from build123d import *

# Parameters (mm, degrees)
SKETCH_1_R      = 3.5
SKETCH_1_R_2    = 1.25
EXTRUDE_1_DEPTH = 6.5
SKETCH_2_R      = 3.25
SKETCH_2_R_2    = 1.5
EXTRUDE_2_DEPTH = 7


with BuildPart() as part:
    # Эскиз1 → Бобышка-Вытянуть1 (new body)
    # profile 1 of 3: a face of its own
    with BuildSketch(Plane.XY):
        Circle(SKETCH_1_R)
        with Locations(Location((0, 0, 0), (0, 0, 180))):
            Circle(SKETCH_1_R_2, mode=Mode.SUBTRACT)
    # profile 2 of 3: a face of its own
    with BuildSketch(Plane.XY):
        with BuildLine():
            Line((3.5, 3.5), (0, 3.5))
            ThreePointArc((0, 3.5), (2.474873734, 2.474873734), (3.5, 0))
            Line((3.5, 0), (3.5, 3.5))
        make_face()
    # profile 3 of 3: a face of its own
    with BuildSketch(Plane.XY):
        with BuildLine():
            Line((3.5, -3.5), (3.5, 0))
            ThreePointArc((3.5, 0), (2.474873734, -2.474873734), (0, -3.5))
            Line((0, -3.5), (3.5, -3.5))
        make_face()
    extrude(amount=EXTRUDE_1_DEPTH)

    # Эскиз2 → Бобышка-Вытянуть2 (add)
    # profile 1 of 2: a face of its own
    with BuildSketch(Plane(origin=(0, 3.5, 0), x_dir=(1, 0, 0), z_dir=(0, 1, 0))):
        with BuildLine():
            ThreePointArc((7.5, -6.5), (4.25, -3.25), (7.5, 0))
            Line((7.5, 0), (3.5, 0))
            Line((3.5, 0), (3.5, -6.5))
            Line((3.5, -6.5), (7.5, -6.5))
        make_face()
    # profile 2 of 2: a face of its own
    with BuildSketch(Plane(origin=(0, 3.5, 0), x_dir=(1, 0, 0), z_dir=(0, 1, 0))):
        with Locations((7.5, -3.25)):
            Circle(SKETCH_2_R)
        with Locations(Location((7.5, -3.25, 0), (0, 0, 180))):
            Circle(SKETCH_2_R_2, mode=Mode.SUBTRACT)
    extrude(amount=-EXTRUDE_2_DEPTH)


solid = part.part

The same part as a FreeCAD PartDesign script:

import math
import FreeCAD as App
import Part
import Sketcher

V = App.Vector
Q = App.Units.Quantity

doc = App.newDocument("Part")
body = doc.addObject("PartDesign::Body", "Body")

# Sketch on XY plane
sketch1 = doc.addObject("Sketcher::SketchObject", "Sketch")
body.addObject(sketch1)
sketch1.AttachmentSupport = (doc.XY_Plane, [""])
sketch1.MapMode = "FlatFace"
sketch1.addGeometry([
    Part.ArcOfCircle(Part.Circle(V(0, 0, 0), V(0, 0, 1), 3.5), math.radians(90), math.radians(270)),  # 0
    Part.LineSegment(V(0, -3.5, 0), V(3.5, -3.5, 0)),  # 1
    Part.LineSegment(V(3.5, -3.5, 0), V(3.5, 3.5, 0)),  # 2
    Part.LineSegment(V(3.5, 3.5, 0), V(0, 3.5, 0)),  # 3
    Part.Circle(V(0, 0, 0), V(0, 0, 1), 1.2),  # 4
], False)
sketch1.addConstraint([
    Sketcher.Constraint("Tangent", 0, 2, 1, 1),
    Sketcher.Constraint("Coincident", 1, 2, 2, 1),
    Sketcher.Constraint("Coincident", 2, 2, 3, 1),
    Sketcher.Constraint("Tangent", 3, 2, 0, 1),
    Sketcher.Constraint("Horizontal", 1),
    Sketcher.Constraint("Vertical", 2),
    Sketcher.Constraint("Horizontal", 3),
    Sketcher.Constraint("Coincident", 0, 3, -1, 1),
    Sketcher.Constraint("Coincident", 4, 3, -1, 1),
    Sketcher.Constraint("Diameter", 4, Q("2.5 mm")),
    Sketcher.Constraint("Radius", 0, Q("3.5 mm")),
    Sketcher.Constraint("DistanceX", 1, 1, 1, 2, Q("3.5 mm")),
])
pad1 = doc.addObject("PartDesign::Pad", "Pad")
body.addObject(pad1)
pad1.Profile = sketch1
pad1.Length = 6.5

# Sketch on XZ plane
sketch2 = doc.addObject("Sketcher::SketchObject", "Sketch001")
body.addObject(sketch2)
sketch2.AttachmentSupport = (doc.XZ_Plane, [""])
sketch2.MapMode = "FlatFace"
sketch2.AttachmentOffset = App.Placement(V(0, 0, -3.5), App.Rotation())
sketch2.addGeometry([
    Part.LineSegment(V(7.5, 0, 0), V(3.5, 0, 0)),  # 0
    Part.LineSegment(V(3.5, 0, 0), V(3.5, 6.5, 0)),  # 1
    Part.LineSegment(V(3.5, 6.5, 0), V(7.5, 6.5, 0)),  # 2
    Part.ArcOfCircle(Part.Circle(V(7.5, 3.2, 0), V(0, 0, 1), 3.2), math.radians(-90), math.radians(90)),  # 3
    Part.Circle(V(7.5, 3.2, 0), V(0, 0, 1), 1.5),  # 4
], False)
sketch2.addConstraint([
    Sketcher.Constraint("Coincident", 0, 2, 1, 1),
    Sketcher.Constraint("Coincident", 1, 2, 2, 1),
    Sketcher.Constraint("Tangent", 2, 2, 3, 2),
    Sketcher.Constraint("Tangent", 3, 1, 0, 1),
    Sketcher.Constraint("Horizontal", 0),
    Sketcher.Constraint("Vertical", 1),
    Sketcher.Constraint("Horizontal", 2),
    Sketcher.Constraint("Coincident", 4, 3, 3, 3),
    Sketcher.Constraint("PointOnObject", 0, 2, -1),
    Sketcher.Constraint("Diameter", 4, Q("3 mm")),
    Sketcher.Constraint("DistanceX", 0, 2, 0, 1, Q("4 mm")),
    Sketcher.Constraint("Radius", 3, Q("3.25 mm")),
    Sketcher.Constraint("DistanceX", -1, 1, 3, 3, Q("7.5 mm")),
])
pad2 = doc.addObject("PartDesign::Pad", "Pad001")
body.addObject(pad2)
pad2.Profile = sketch2
pad2.Length = 7

doc.recompute()
